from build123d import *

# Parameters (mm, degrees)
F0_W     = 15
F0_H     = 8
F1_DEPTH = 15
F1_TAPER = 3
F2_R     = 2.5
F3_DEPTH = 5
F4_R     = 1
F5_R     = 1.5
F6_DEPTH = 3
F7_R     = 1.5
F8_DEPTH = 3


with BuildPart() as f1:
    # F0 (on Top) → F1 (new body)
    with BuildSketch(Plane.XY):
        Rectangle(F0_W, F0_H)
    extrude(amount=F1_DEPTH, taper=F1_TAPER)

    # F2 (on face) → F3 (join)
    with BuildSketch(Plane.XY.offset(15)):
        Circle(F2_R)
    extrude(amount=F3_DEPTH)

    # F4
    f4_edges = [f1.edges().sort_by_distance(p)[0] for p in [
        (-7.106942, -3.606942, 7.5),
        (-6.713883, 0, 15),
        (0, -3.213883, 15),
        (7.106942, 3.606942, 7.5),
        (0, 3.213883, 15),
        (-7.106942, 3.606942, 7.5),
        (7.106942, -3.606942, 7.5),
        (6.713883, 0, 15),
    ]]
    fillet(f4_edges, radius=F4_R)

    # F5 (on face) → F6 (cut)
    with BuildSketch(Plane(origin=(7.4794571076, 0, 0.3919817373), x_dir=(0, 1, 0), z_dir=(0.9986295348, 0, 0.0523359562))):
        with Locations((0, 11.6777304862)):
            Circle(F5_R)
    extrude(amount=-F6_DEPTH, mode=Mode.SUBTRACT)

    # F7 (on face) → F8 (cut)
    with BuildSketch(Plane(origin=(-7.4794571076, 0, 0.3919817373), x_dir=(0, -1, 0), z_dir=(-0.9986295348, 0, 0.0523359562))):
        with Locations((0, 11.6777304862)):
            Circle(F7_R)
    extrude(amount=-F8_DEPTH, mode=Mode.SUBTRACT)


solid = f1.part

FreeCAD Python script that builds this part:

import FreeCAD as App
import Part
import Sketcher

V = App.Vector


def edges_at(feature, points):
    """Names of the edges that pass closest to the given points."""
    edges = feature.Shape.Edges
    near = lambda p: min(range(len(edges)), key=lambda i: edges[i].distToShape(Part.Vertex(*p))[0])
    return sorted({f"Edge{near(p) + 1}" for p in points})

doc = App.newDocument("Part")
params = doc.addObject("Spreadsheet::Sheet", "Params")
for row, (alias, value) in enumerate([
    ("sketch1_width", "15 mm"),
    ("sketch1_height", "8 mm"),
    ("pad1_length", "15 mm"),
    ("pad1_taper", "-3 deg"),
    ("sketch2_diameter", "5 mm"),
    ("pad2_length", "5 mm"),
    ("fillet_radius", "1 mm"),
    ("sketch3_diameter", "3 mm"),
    ("pocket1_length", "3 mm"),
    ("sketch4_diameter", "3 mm"),
    ("pocket2_length", "3 mm"),
], start=1):
    params.set(f"A{row}", alias)
    params.set(f"B{row}", "=" + value)
    params.setAlias(f"B{row}", alias)

body = doc.addObject("PartDesign::Body", "Body")

sketch1 = body.newObject("Sketcher::SketchObject", "Sketch")
sketch1.AttachmentSupport = (doc.getObject("XY_Plane"), [""])
sketch1.MapMode = "FlatFace"
sketch1.addGeometry([
    Part.LineSegment(V(-8, 4, 0), V(-8, -4, 0)),
    Part.LineSegment(V(-8, -4, 0), V(8, -4, 0)),
    Part.LineSegment(V(8, -4, 0), V(8, 4, 0)),
    Part.LineSegment(V(8, 4, 0), V(-8, 4, 0)),
], False)
sketch1.addConstraint([
    Sketcher.Constraint("Coincident", 0, 2, 1, 1),
    Sketcher.Constraint("Coincident", 1, 2, 2, 1),
    Sketcher.Constraint("Coincident", 2, 2, 3, 1),
    Sketcher.Constraint("Coincident", 3, 2, 0, 1),
    Sketcher.Constraint("Vertical", 0),
    Sketcher.Constraint("Horizontal", 1),
    Sketcher.Constraint("Vertical", 2),
    Sketcher.Constraint("Horizontal", 3),
    Sketcher.Constraint("Symmetric", 0, 2, 2, 2, -1, 1),
    Sketcher.Constraint("DistanceX", 1, 1, 1, 2, 15.0),
    Sketcher.Constraint("DistanceY", 0, 2, 0, 1, 8.0),
])
sketch1.setExpression("Constraints[9]", "Params.sketch1_width")
sketch1.setExpression("Constraints[10]", "Params.sketch1_height")
pad1 = body.newObject("PartDesign::Pad", "Pad")
pad1.Profile = sketch1
pad1.setExpression("Length", "Params.pad1_length")
pad1.setExpression("TaperAngle", "Params.pad1_taper")

sketch2 = body.newObject("Sketcher::SketchObject", "Sketch001")
sketch2.AttachmentSupport = (doc.getObject("XY_Plane"), [""])
sketch2.MapMode = "FlatFace"
sketch2.AttachmentOffset = App.Placement(V(0, 0, 15), App.Rotation())
sketch2.addGeometry(Part.Circle(V(0, 0, 0), V(0, 0, 1), 2.5), False)
sketch2.addConstraint([
    Sketcher.Constraint("Coincident", 0, 3, -1, 1),
    Sketcher.Constraint("Diameter", 0, 5.0),
])
sketch2.setExpression("Constraints[1]", "Params.sketch2_diameter")
pad2 = body.newObject("PartDesign::Pad", "Pad001")
pad2.Profile = sketch2
pad2.setExpression("Length", "Params.pad2_length")
doc.recompute()

fillet = body.newObject("PartDesign::Fillet", "Fillet")
fillet.Base = (pad2, edges_at(pad2, [
    (-7.107, -3.607, 7.5),
    (-6.714, 0, 15),
    (0, -3.214, 15),
    (7.107, 3.607, 7.5),
    (0, 3.214, 15),
    (-7.107, 3.607, 7.5),
    (7.107, -3.607, 7.5),
    (6.714, 0, 15),
]))
fillet.setExpression("Radius", "Params.fillet_radius")

sketch3 = body.newObject("Sketcher::SketchObject", "Sketch002")
sketch3.Placement = App.Placement(V(7.479457, 0, 0.391982), App.Rotation(V(0, 1, 0), V(-0.052335956, 0, 0.998629535), V(0.998629535, 0, 0.052335956), "ZXY"))
sketch3.addGeometry(Part.Circle(V(0, 11.7, 0), V(0, 0, 1), 1.5), False)
sketch3.addConstraint([
    Sketcher.Constraint("PointOnObject", 0, 3, -2),
    Sketcher.Constraint("Diameter", 0, 3.0),
    Sketcher.Constraint("DistanceY", -1, 1, 0, 3, 11.67773),
])
sketch3.setExpression("Constraints[1]", "Params.sketch3_diameter")
pocket1 = body.newObject("PartDesign::Pocket", "Pocket")
pocket1.Profile = sketch3
pocket1.setExpression("Length", "Params.pocket1_length")

sketch4 = body.newObject("Sketcher::SketchObject", "Sketch003")
sketch4.Placement = App.Placement(V(-7.479457, 0, 0.391982), App.Rotation(V(0, -1, 0), V(0.052335956, 0, 0.998629535), V(-0.998629535, 0, 0.052335956), "ZXY"))
sketch4.addGeometry(Part.Circle(V(0, 11.7, 0), V(0, 0, 1), 1.5), False)
sketch4.addConstraint([
    Sketcher.Constraint("PointOnObject", 0, 3, -2),
    Sketcher.Constraint("Diameter", 0, 3.0),
    Sketcher.Constraint("DistanceY", -1, 1, 0, 3, 11.67773),
])
sketch4.setExpression("Constraints[1]", "Params.sketch4_diameter")
pocket2 = body.newObject("PartDesign::Pocket", "Pocket001")
pocket2.Profile = sketch4
pocket2.setExpression("Length", "Params.pocket2_length")

doc.recompute()
